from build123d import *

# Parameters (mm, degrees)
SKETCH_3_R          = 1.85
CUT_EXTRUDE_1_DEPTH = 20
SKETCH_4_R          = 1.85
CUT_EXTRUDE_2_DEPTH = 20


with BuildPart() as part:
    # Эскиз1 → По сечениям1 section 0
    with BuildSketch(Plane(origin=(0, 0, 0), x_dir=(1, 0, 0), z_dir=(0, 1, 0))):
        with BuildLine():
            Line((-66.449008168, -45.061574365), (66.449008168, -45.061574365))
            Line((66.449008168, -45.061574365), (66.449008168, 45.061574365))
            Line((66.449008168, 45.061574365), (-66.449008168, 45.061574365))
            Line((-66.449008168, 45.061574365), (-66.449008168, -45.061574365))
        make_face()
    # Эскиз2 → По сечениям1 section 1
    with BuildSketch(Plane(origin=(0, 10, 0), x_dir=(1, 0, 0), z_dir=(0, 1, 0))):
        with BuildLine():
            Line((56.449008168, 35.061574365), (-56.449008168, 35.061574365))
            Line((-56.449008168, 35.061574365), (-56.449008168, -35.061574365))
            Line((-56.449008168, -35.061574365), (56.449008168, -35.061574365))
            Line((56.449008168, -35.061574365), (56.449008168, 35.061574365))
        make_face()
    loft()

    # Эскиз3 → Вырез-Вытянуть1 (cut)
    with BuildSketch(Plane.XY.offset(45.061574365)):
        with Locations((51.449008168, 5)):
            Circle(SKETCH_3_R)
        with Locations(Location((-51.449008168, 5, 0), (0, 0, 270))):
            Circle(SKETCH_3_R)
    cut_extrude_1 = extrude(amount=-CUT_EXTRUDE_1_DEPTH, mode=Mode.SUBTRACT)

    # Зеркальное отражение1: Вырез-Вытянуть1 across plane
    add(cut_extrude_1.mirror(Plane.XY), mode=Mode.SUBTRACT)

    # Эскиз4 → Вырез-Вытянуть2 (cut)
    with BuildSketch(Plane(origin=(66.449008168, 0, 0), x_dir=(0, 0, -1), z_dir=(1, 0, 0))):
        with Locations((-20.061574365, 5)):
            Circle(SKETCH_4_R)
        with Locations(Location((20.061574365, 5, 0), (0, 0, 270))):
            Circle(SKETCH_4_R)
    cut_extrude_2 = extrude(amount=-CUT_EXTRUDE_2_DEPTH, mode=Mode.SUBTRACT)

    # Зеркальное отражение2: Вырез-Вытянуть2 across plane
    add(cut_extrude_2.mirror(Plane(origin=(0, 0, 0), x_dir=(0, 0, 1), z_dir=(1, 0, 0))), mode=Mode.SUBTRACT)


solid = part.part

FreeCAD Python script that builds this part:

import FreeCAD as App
import Part
import Sketcher
from FreeCAD import Vector
Q = App.Units.Quantity


def add_polygon(sketch, points):
    """Adds a closed chain of lines whose ends are joined by coincident constraints."""
    first, n = sketch.GeometryCount, len(points)
    for a, b in zip(points, points[1:] + points[:1]):
        sketch.addGeometry(Part.LineSegment(App.Vector(*a, 0), App.Vector(*b, 0)), False)
    for i in range(n):
        sketch.addConstraint(Sketcher.Constraint("Coincident", first + i, 2, first + (i + 1) % n, 1))

doc = App.newDocument("Part")
params = doc.addObject("Spreadsheet::Sheet", "Params")
for row, (alias, value) in enumerate([
    ("sketch3_diameter", "3.7 mm"),
    ("pocket1_length", "20 mm"),
    ("sketch4_diameter", "3.7 mm"),
    ("pocket2_length", "20 mm"),
], start=1):
    params.set(f"A{row}", alias)
    params.set(f"B{row}", "=" + value)
    params.setAlias(f"B{row}", alias)

body = doc.addObject("PartDesign::Body", "Body")

sketch1 = body.newObject("Sketcher::SketchObject", "Sketch")
sketch1.AttachmentSupport = (doc.getObject("XZ_Plane"), [""])
sketch1.MapMode = "FlatFace"
add_polygon(sketch1, [(-66, 45), (66, 45), (66, -45), (-66, -45)])
sketch1.addConstraint(Sketcher.Constraint("Horizontal", 0))
sketch1.addConstraint(Sketcher.Constraint("Vertical", 1))
sketch1.addConstraint(Sketcher.Constraint("Horizontal", 2))
sketch1.addConstraint(Sketcher.Constraint("Vertical", 3))
sketch1.addConstraint(Sketcher.Constraint("Symmetric", 0, 2, 2, 2, -1, 1))
sketch1.addConstraint(Sketcher.Constraint("DistanceY", 1, 2, 1, 1, Q("90.123149 mm")))
sketch1.addConstraint(Sketcher.Constraint("DistanceX", 0, 1, 0, 2, Q("132.898016 mm")))

sketch2 = body.newObject("Sketcher::SketchObject", "Sketch001")
sketch2.AttachmentSupport = (doc.getObject("XZ_Plane"), [""])
sketch2.MapMode = "FlatFace"
sketch2.AttachmentOffset = App.Placement(Vector(0, 0, -10), App.Rotation())
add_polygon(sketch2, [(56, -35), (-56, -35), (-56, 35), (56, 35)])
sketch2.addConstraint(Sketcher.Constraint("Horizontal", 0))
sketch2.addConstraint(Sketcher.Constraint("Vertical", 1))
sketch2.addConstraint(Sketcher.Constraint("Horizontal", 2))
sketch2.addConstraint(Sketcher.Constraint("Vertical", 3))
sketch2.addConstraint(Sketcher.Constraint("Symmetric", 0, 2, 2, 2, -1, 1))
sketch2.addConstraint(Sketcher.Constraint("DistanceY", 1, 1, 1, 2, Q("70.123149 mm")))
sketch2.addConstraint(Sketcher.Constraint("DistanceX", 0, 2, 0, 1, Q("112.898016 mm")))

additiveloft = body.newObject("PartDesign::AdditiveLoft", "AdditiveLoft")
additiveloft.Profile = sketch1
additiveloft.Sections = [sketch2]

sketch3 = body.newObject("Sketcher::SketchObject", "Sketch002")
sketch3.AttachmentSupport = (doc.getObject("XY_Plane"), [""])
sketch3.MapMode = "FlatFace"
sketch3.AttachmentOffset = App.Placement(Vector(0, 0, 45.061574), App.Rotation())
sketch3.addGeometry(Part.Circle(Vector(51.4, 5, 0), Vector(0, 0, 1), 1.9), False)
sketch3.addGeometry(Part.Circle(Vector(-51.4, 5, 0), Vector(0, 0, 1), 1.9), False)
sketch3.addConstraint(Sketcher.Constraint("Equal", 0, 1))
sketch3.addConstraint(Sketcher.Constraint("Symmetric", 0, 3, 1, 3, -2))
sketch3.addConstraint(Sketcher.Constraint("Diameter", 0, Q("3.7 mm")))
sketch3.addConstraint(Sketcher.Constraint("DistanceY", -1, 1, 0, 3, Q("5 mm")))
sketch3.addConstraint(Sketcher.Constraint("DistanceX", -1, 1, 0, 3, Q("51.449008 mm")))
sketch3.setExpression("Constraints[2]", "Params.sketch3_diameter")
pocket1 = body.newObject("PartDesign::Pocket", "Pocket")
pocket1.Profile = sketch3
pocket1.setExpression("Length", "Params.pocket1_length")
doc.recompute()

mirrored = body.newObject("PartDesign::Mirrored", "Mirrored")
mirrored.Originals = [pocket1]
mirrored.MirrorPlane = (doc.getObject("XY_Plane"), [""])
body.Tip = mirrored

sketch4 = body.newObject("Sketcher::SketchObject", "Sketch003")
sketch4.AttachmentSupport = (doc.getObject("YZ_Plane"), [""])
sketch4.MapMode = "FlatFace"
sketch4.AttachmentOffset = App.Placement(Vector(0, 0, 66.449008), App.Rotation())
sketch4.addGeometry(Part.Circle(Vector(5, 20.1, 0), Vector(0, 0, 1), 1.9), False)
sketch4.addGeometry(Part.Circle(Vector(5, -20.1, 0), Vector(0, 0, 1), 1.9), False)
sketch4.addConstraint(Sketcher.Constraint("Equal", 0, 1))
sketch4.addConstraint(Sketcher.Constraint("Symmetric", 0, 3, 1, 3, -1))
sketch4.addConstraint(Sketcher.Constraint("Diameter", 0, Q("3.7 mm")))
sketch4.addConstraint(Sketcher.Constraint("DistanceX", -1, 1, 0, 3, Q("5 mm")))
sketch4.addConstraint(Sketcher.Constraint("DistanceY", 1, 3, 0, 3, Q("40.123149 mm")))
sketch4.setExpression("Constraints[2]", "Params.sketch4_diameter")
pocket2 = body.newObject("PartDesign::Pocket", "Pocket001")
pocket2.Profile = sketch4
pocket2.setExpression("Length", "Params.pocket2_length")
doc.recompute()

mirrored2 = body.newObject("PartDesign::Mirrored", "Mirrored001")
mirrored2.Originals = [pocket2]
mirrored2.MirrorPlane = (doc.getObject("YZ_Plane"), [""])
body.Tip = mirrored2

doc.recompute()
